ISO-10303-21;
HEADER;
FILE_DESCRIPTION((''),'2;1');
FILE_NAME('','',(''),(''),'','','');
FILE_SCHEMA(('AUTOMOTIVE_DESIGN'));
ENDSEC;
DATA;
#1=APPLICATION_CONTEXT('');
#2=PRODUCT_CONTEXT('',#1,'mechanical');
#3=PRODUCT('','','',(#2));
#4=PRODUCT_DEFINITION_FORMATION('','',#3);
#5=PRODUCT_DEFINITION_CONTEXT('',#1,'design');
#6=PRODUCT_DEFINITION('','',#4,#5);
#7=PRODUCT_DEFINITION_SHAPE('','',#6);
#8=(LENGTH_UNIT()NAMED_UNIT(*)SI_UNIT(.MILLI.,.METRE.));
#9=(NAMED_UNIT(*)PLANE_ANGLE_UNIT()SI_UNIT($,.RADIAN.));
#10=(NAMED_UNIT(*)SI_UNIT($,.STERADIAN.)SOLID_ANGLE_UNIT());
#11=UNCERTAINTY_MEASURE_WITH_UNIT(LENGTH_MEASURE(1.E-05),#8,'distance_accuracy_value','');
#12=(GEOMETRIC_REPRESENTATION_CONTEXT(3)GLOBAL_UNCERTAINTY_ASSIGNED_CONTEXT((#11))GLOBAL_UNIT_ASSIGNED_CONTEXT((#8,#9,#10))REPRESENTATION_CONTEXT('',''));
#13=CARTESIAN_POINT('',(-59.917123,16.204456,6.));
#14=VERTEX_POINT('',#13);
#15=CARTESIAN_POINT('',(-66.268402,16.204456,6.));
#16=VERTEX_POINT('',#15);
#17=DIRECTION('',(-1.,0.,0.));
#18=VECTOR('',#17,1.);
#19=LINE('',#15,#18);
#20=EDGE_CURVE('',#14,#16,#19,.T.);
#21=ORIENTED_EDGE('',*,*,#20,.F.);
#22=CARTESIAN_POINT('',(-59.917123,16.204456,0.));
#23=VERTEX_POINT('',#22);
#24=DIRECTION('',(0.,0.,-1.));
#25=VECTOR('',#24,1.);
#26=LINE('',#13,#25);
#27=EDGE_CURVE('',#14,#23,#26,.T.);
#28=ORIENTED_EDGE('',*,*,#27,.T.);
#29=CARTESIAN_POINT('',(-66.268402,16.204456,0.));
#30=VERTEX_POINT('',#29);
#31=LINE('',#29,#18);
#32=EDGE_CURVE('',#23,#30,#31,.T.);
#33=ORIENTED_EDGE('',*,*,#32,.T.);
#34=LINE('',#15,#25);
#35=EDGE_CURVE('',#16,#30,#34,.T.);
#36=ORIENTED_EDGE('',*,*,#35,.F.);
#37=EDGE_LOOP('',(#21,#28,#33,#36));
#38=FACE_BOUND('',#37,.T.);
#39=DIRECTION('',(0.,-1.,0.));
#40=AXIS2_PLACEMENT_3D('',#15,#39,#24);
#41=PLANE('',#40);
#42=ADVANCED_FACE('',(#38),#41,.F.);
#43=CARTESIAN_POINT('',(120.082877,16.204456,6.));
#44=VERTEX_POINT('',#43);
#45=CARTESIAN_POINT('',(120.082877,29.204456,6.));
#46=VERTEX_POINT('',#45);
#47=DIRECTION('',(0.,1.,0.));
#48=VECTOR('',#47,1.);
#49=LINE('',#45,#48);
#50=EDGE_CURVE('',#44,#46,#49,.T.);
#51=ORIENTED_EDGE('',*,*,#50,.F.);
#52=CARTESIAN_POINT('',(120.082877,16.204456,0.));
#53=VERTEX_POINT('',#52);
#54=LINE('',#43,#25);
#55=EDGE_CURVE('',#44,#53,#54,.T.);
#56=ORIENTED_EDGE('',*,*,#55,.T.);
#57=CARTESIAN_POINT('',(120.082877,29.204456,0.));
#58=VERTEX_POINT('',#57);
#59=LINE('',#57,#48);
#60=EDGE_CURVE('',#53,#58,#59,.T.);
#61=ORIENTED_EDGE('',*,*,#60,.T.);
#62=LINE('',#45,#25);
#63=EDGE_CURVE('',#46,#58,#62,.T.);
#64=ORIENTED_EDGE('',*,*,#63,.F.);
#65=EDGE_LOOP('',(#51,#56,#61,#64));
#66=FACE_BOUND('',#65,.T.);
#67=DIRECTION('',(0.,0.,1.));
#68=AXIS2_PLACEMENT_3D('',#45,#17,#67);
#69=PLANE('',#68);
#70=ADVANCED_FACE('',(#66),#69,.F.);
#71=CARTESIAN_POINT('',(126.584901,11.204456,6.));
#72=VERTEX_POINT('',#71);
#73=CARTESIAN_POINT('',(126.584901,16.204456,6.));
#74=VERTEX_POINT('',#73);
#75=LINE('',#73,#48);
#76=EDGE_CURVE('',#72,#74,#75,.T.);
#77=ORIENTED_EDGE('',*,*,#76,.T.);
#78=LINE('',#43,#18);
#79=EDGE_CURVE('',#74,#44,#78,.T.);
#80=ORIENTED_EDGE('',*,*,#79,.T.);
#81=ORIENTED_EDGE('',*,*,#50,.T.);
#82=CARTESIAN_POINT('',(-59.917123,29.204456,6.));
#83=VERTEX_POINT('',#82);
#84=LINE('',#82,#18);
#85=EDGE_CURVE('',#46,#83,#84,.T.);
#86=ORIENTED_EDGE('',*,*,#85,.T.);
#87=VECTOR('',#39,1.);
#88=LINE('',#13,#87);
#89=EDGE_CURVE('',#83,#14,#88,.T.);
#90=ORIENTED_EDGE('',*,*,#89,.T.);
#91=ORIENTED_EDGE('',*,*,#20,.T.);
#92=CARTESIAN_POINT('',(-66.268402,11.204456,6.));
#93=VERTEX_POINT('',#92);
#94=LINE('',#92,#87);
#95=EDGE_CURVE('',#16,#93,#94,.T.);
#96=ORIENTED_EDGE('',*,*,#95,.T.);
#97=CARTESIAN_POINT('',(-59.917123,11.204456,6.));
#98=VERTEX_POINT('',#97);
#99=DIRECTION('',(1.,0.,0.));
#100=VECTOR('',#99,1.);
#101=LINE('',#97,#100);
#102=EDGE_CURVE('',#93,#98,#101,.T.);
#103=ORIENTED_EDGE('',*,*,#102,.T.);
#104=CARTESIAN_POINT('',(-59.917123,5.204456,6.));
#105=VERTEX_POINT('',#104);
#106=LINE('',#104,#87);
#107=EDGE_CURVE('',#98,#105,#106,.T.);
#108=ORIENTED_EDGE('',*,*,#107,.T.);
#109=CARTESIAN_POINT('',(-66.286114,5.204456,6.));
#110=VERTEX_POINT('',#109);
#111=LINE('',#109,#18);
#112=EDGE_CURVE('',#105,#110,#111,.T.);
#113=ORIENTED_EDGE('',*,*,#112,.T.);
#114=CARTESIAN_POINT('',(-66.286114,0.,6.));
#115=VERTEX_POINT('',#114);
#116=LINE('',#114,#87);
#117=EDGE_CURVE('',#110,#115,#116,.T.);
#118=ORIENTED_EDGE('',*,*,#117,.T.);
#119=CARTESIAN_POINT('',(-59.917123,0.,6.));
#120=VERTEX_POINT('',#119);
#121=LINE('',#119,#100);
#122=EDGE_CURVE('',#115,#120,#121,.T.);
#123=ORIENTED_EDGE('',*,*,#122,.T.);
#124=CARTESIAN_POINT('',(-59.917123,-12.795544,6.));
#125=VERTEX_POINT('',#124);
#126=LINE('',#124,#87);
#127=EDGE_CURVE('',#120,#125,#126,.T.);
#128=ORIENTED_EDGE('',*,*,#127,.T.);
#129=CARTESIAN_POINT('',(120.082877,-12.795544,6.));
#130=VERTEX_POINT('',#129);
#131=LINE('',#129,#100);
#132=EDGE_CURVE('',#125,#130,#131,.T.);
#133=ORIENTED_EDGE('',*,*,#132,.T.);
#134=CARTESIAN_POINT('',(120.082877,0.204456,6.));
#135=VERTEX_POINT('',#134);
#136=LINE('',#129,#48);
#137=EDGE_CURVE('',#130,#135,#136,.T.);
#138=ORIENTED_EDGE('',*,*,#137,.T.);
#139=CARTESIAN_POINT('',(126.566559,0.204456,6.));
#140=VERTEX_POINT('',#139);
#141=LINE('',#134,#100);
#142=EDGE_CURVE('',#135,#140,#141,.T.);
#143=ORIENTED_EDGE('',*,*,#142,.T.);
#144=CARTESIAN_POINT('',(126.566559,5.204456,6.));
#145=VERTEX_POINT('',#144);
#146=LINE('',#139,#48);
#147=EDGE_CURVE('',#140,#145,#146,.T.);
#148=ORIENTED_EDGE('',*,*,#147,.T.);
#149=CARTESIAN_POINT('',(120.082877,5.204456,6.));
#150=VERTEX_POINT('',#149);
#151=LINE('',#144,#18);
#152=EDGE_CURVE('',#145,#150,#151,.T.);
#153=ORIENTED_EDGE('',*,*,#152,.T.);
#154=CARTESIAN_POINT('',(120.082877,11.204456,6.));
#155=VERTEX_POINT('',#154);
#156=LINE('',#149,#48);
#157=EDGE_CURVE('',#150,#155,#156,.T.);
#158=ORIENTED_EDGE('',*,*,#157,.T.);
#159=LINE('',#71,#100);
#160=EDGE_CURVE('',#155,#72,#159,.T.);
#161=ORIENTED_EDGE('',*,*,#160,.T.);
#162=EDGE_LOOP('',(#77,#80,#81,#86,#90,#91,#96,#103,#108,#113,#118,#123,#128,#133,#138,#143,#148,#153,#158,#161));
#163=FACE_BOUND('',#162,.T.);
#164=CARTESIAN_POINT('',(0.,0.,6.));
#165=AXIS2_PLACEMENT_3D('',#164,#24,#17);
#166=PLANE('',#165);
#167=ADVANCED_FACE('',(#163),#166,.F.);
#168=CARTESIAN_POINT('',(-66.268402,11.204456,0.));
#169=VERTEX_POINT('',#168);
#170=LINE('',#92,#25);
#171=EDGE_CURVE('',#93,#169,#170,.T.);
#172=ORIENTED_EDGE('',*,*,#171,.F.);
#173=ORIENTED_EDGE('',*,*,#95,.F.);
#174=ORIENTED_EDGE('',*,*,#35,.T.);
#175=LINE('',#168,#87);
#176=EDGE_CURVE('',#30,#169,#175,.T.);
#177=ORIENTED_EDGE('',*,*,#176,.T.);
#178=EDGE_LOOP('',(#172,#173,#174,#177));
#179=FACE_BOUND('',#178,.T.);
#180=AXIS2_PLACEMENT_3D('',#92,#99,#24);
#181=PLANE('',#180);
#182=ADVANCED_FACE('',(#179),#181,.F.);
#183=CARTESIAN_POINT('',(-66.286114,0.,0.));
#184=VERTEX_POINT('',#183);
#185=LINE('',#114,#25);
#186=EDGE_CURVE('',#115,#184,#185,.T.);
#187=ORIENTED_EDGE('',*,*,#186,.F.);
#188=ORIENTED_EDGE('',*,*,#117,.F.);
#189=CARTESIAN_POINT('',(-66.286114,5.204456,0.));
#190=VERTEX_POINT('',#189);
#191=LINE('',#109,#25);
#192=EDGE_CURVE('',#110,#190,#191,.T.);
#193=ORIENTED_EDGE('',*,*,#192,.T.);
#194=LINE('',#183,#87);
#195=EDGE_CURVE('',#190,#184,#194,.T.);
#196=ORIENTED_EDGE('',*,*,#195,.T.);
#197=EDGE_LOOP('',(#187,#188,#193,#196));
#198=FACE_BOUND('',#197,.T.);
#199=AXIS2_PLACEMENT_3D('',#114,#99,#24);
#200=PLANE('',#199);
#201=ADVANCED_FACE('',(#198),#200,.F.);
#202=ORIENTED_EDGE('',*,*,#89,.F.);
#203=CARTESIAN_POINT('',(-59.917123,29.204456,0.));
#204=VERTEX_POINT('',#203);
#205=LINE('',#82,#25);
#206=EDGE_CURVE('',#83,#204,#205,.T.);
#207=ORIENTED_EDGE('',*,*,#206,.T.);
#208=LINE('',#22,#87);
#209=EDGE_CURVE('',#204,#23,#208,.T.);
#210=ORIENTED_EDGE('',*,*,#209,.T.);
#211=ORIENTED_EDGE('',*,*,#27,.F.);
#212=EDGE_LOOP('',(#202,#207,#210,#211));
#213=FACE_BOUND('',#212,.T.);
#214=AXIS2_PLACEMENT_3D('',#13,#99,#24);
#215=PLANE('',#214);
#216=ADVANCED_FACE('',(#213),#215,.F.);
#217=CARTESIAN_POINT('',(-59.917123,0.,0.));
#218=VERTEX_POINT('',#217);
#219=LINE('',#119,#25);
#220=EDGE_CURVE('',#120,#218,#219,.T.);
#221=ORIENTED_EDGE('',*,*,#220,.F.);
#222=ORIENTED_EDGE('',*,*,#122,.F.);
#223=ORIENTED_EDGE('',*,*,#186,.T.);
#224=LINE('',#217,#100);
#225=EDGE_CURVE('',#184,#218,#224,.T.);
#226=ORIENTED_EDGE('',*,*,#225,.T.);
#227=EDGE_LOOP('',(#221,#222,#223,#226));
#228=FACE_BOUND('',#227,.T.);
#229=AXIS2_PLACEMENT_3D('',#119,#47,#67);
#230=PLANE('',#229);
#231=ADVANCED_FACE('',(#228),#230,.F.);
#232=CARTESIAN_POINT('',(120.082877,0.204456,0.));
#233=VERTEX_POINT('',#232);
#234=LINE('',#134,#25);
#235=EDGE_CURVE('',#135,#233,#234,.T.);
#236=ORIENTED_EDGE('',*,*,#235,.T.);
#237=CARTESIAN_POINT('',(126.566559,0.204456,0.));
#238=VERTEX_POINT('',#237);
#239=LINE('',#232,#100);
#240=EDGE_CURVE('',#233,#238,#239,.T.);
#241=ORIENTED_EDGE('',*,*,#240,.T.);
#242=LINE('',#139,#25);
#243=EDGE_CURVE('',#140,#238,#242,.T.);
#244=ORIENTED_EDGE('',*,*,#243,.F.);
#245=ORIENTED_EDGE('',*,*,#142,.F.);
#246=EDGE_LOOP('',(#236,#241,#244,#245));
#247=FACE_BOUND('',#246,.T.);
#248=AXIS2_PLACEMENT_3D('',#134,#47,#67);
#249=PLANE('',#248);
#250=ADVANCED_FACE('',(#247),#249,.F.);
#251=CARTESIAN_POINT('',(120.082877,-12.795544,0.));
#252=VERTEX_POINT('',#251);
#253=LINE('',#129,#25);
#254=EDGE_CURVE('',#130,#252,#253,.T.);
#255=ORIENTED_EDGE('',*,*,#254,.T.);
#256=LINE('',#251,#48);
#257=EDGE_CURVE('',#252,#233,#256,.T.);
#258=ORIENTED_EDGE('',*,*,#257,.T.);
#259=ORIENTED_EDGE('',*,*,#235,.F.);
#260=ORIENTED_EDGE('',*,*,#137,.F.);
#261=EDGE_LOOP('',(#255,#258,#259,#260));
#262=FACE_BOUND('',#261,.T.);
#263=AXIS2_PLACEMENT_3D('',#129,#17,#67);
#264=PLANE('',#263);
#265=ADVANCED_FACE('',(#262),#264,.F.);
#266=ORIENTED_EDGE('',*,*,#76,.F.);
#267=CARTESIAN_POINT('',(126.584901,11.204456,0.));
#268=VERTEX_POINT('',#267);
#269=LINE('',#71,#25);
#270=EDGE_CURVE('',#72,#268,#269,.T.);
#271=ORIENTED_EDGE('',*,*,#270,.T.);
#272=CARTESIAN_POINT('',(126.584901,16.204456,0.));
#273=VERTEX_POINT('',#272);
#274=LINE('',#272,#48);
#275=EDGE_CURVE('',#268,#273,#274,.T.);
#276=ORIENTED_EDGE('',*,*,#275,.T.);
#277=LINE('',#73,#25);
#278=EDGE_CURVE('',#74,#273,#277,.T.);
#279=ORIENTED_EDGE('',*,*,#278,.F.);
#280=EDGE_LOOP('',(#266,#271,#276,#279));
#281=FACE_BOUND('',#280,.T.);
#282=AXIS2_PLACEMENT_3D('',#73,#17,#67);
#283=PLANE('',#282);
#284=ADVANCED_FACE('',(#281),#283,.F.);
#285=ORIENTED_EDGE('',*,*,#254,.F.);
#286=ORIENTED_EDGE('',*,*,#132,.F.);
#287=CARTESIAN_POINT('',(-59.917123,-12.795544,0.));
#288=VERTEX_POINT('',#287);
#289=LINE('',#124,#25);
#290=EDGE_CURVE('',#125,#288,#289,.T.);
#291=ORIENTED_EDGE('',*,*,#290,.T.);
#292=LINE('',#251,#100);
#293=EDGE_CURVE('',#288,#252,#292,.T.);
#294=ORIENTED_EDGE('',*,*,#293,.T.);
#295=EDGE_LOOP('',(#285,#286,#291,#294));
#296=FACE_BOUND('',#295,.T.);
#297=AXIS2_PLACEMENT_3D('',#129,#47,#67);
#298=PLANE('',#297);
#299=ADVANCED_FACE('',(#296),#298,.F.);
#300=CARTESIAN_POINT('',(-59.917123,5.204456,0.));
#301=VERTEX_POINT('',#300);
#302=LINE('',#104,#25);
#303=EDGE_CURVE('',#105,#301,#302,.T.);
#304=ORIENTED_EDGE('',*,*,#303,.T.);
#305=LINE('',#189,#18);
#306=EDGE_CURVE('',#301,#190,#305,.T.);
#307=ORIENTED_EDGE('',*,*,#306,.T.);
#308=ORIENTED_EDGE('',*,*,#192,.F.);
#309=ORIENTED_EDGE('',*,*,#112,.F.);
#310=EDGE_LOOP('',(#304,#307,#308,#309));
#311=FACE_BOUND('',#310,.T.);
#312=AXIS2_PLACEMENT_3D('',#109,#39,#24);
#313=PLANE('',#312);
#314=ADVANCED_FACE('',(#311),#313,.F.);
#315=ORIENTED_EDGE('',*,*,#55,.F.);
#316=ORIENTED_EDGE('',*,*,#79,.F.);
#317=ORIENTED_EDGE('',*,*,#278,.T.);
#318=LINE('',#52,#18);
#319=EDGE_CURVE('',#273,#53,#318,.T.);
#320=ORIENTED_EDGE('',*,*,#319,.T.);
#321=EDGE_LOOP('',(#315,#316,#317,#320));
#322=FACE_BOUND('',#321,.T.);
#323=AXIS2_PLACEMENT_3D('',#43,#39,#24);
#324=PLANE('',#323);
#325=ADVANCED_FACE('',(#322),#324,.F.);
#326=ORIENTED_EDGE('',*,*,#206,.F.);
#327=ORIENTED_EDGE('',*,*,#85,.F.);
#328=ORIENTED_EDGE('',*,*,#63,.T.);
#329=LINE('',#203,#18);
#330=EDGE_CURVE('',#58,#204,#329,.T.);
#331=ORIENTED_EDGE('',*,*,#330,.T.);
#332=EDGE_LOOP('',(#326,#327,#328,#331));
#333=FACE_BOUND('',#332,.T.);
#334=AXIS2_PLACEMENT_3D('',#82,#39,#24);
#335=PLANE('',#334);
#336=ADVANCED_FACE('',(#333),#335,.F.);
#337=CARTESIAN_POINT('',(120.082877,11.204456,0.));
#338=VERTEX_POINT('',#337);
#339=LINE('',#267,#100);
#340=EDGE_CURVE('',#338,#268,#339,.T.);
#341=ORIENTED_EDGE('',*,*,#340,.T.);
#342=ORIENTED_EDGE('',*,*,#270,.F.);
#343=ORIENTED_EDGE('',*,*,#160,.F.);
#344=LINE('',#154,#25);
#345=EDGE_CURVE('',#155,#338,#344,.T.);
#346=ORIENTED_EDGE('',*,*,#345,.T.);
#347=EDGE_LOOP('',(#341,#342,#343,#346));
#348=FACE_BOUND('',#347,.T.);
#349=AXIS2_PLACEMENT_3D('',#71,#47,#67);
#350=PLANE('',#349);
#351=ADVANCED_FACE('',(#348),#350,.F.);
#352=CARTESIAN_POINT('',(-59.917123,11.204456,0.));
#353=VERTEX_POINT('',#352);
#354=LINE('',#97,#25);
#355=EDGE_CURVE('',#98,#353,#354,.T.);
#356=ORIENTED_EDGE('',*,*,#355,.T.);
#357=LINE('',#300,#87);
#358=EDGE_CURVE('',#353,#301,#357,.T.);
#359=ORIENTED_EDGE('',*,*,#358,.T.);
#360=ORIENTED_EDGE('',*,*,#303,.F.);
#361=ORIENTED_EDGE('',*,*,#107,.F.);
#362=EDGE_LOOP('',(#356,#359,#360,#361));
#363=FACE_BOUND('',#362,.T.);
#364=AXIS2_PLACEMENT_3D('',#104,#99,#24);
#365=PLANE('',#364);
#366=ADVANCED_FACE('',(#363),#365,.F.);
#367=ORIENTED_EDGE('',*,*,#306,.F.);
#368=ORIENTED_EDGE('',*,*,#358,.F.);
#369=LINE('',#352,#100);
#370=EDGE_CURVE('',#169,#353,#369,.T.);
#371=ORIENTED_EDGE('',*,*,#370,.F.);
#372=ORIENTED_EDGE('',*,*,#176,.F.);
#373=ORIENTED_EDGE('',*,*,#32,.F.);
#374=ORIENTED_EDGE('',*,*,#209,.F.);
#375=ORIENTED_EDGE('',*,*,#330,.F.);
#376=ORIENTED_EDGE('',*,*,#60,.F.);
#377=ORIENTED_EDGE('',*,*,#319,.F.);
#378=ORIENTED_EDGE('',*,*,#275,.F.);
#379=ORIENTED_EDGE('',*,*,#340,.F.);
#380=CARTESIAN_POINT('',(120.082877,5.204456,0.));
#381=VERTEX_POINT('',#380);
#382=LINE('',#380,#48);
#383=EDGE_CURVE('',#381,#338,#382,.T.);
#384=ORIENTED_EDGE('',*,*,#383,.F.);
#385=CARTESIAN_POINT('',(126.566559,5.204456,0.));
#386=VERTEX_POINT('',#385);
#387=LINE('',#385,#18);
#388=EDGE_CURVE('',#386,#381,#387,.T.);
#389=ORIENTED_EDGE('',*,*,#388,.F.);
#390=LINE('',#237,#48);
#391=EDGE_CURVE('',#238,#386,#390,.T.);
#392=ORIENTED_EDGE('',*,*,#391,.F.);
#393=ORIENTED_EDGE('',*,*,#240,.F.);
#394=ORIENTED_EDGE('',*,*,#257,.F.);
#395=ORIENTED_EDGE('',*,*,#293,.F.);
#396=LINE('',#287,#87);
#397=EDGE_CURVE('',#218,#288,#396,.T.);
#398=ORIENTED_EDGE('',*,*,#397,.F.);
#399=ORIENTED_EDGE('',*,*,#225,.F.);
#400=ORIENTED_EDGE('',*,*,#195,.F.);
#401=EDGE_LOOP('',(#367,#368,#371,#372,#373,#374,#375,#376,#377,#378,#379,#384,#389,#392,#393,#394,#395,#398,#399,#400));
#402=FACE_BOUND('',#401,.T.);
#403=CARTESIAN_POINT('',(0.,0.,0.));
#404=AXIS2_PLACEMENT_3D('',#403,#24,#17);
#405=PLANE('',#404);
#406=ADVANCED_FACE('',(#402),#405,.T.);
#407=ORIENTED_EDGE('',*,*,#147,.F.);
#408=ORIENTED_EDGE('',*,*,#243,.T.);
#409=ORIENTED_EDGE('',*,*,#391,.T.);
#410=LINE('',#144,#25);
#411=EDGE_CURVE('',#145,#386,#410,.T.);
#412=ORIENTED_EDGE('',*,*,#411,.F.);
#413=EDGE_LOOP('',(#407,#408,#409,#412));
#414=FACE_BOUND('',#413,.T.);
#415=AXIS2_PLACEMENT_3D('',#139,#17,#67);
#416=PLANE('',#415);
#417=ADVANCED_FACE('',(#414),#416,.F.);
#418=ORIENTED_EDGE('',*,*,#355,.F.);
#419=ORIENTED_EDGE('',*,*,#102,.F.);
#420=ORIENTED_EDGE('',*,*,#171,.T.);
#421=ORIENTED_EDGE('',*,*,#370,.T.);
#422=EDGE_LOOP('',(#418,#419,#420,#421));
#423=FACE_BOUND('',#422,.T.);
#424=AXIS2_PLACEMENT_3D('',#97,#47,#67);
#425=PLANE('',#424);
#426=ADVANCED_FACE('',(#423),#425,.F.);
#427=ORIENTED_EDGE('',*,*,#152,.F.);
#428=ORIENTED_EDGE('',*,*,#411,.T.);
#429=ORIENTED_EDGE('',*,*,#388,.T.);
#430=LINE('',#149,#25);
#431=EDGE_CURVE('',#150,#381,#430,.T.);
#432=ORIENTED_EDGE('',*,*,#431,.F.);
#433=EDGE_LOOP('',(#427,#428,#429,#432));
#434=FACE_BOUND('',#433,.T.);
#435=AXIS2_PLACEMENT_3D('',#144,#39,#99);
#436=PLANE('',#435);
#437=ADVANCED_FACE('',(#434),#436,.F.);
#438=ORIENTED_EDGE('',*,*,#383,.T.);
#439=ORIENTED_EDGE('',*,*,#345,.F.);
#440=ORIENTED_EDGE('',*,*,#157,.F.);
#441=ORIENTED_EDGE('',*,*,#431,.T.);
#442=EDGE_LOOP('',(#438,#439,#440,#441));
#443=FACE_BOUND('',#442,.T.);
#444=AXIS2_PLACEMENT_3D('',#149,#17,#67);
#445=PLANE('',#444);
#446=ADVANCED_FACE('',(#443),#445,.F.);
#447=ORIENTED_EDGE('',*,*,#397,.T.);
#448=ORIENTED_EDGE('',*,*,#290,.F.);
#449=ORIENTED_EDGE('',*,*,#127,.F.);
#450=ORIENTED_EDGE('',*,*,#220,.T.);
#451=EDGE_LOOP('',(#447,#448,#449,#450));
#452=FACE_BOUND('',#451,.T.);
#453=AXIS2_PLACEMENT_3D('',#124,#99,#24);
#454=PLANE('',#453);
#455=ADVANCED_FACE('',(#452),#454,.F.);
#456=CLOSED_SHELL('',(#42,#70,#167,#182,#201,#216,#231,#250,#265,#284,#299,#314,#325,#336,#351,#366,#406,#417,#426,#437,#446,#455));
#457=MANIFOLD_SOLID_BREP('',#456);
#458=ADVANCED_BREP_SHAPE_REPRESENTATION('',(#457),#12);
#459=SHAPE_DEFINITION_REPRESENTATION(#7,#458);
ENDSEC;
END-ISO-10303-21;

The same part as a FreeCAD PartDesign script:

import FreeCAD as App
import Part
import Sketcher
from FreeCAD import Vector
Q = App.Units.Quantity


def add_polygon(sketch, points):
    """Adds a closed chain of lines whose ends are joined by coincident constraints."""
    first, n = sketch.GeometryCount, len(points)
    for a, b in zip(points, points[1:] + points[:1]):
        sketch.addGeometry(Part.LineSegment(App.Vector(*a, 0), App.Vector(*b, 0)), False)
    for i in range(n):
        sketch.addConstraint(Sketcher.Constraint("Coincident", first + i, 2, first + (i + 1) % n, 1))

doc = App.newDocument("Part")
params = doc.addObject("Spreadsheet::Sheet", "Params")
for row, (alias, value) in enumerate([
    ("sketch1_width", "180 mm"),
    ("sketch1_height", "13 mm"),
    ("sketch1_height2", "5 mm"),
    ("sketch1_height3", "6 mm"),
    ("pad1_length", "6 mm"),
], start=1):
    params.set(f"A{row}", alias)
    params.set(f"B{row}", "=" + value)
    params.setAlias(f"B{row}", alias)

body = doc.addObject("PartDesign::Body", "Body")

# Sketch on XY plane
sketch1 = body.newObject("Sketcher::SketchObject", "Sketch")
sketch1.AttachmentSupport = (doc.getObject("XY_Plane"), [""])
sketch1.MapMode = "FlatFace"
add_polygon(sketch1, [(120, 29), (-60, 29), (-60, 16), (-66, 16), (-66, 11), (-60, 11), (-60, 5), (-66, 5), (-66, 0), (-60, 0), (-60, -13), (120, -13), (120, 0), (127, 0), (127, 5), (120, 5), (120, 11), (127, 11), (127, 16), (120, 16)])  # lines 0-19
sketch1.addConstraint([
    Sketcher.Constraint("Horizontal", 0),
    Sketcher.Constraint("Vertical", 1),
    Sketcher.Constraint("Horizontal", 2),
    Sketcher.Constraint("Vertical", 3),
    Sketcher.Constraint("Horizontal", 4),
    Sketcher.Constraint("Vertical", 5),
    Sketcher.Constraint("Horizontal", 6),
    Sketcher.Constraint("Vertical", 7),
    Sketcher.Constraint("Horizontal", 8),
    Sketcher.Constraint("Vertical", 9),
    Sketcher.Constraint("Horizontal", 10),
    Sketcher.Constraint("Vertical", 11),
    Sketcher.Constraint("Horizontal", 12),
    Sketcher.Constraint("Vertical", 13),
    Sketcher.Constraint("Horizontal", 14),
    Sketcher.Constraint("Vertical", 15),
    Sketcher.Constraint("Horizontal", 16),
    Sketcher.Constraint("Vertical", 17),
    Sketcher.Constraint("Horizontal", 18),
    Sketcher.Constraint("Vertical", 19),
    Sketcher.Constraint("PointOnObject", 7, 2, -1),
    Sketcher.Constraint("Horizontal", 6, 2, 13, 2),
    Sketcher.Constraint("Horizontal", 4, 2, 15, 2),
    Sketcher.Constraint("Horizontal", 2, 2, 17, 2),
    Sketcher.Constraint("Vertical", 1, 2, 4, 2),
    Sketcher.Constraint("Vertical", 5, 2, 8, 2),
    Sketcher.Constraint("Vertical", 11, 2, 14, 2),
    Sketcher.Constraint("Vertical", 15, 2, 18, 2),
    Sketcher.Constraint("Equal", 1, 11),
    Sketcher.Constraint("Equal", 3, 13),
    Sketcher.Constraint("DistanceX", 0, 2, 0, 1, Q("180 mm")),
    Sketcher.Constraint("DistanceY", 1, 2, 1, 1, Q("13 mm")),
    Sketcher.Constraint("DistanceY", 3, 2, 3, 1, Q("5 mm")),
    Sketcher.Constraint("DistanceY", 5, 2, 5, 1, Q("6 mm")),
    Sketcher.Constraint("DistanceX", 2, 2, 2, 1, Q("6.351279 mm")),
    Sketcher.Constraint("DistanceX", 6, 2, 6, 1, Q("6.368991 mm")),
    Sketcher.Constraint("DistanceX", 2, 2, -1, 1, Q("66.268402 mm")),
    Sketcher.Constraint("DistanceX", -1, 1, 16, 2, Q("126.584901 mm")),
    Sketcher.Constraint("DistanceX", 12, 1, 12, 2, Q("6.483682 mm")),
    Sketcher.Constraint("DistanceY", 7, 2, 7, 1, Q("5.204456 mm")),
])
sketch1.setExpression("Constraints[50]", "Params.sketch1_width")
sketch1.setExpression("Constraints[51]", "Params.sketch1_height")
sketch1.setExpression("Constraints[52]", "Params.sketch1_height2")
sketch1.setExpression("Constraints[53]", "Params.sketch1_height3")
pad1 = body.newObject("PartDesign::Pad", "Pad")
pad1.Profile = sketch1
pad1.setExpression("Length", "Params.pad1_length")

doc.recompute()
